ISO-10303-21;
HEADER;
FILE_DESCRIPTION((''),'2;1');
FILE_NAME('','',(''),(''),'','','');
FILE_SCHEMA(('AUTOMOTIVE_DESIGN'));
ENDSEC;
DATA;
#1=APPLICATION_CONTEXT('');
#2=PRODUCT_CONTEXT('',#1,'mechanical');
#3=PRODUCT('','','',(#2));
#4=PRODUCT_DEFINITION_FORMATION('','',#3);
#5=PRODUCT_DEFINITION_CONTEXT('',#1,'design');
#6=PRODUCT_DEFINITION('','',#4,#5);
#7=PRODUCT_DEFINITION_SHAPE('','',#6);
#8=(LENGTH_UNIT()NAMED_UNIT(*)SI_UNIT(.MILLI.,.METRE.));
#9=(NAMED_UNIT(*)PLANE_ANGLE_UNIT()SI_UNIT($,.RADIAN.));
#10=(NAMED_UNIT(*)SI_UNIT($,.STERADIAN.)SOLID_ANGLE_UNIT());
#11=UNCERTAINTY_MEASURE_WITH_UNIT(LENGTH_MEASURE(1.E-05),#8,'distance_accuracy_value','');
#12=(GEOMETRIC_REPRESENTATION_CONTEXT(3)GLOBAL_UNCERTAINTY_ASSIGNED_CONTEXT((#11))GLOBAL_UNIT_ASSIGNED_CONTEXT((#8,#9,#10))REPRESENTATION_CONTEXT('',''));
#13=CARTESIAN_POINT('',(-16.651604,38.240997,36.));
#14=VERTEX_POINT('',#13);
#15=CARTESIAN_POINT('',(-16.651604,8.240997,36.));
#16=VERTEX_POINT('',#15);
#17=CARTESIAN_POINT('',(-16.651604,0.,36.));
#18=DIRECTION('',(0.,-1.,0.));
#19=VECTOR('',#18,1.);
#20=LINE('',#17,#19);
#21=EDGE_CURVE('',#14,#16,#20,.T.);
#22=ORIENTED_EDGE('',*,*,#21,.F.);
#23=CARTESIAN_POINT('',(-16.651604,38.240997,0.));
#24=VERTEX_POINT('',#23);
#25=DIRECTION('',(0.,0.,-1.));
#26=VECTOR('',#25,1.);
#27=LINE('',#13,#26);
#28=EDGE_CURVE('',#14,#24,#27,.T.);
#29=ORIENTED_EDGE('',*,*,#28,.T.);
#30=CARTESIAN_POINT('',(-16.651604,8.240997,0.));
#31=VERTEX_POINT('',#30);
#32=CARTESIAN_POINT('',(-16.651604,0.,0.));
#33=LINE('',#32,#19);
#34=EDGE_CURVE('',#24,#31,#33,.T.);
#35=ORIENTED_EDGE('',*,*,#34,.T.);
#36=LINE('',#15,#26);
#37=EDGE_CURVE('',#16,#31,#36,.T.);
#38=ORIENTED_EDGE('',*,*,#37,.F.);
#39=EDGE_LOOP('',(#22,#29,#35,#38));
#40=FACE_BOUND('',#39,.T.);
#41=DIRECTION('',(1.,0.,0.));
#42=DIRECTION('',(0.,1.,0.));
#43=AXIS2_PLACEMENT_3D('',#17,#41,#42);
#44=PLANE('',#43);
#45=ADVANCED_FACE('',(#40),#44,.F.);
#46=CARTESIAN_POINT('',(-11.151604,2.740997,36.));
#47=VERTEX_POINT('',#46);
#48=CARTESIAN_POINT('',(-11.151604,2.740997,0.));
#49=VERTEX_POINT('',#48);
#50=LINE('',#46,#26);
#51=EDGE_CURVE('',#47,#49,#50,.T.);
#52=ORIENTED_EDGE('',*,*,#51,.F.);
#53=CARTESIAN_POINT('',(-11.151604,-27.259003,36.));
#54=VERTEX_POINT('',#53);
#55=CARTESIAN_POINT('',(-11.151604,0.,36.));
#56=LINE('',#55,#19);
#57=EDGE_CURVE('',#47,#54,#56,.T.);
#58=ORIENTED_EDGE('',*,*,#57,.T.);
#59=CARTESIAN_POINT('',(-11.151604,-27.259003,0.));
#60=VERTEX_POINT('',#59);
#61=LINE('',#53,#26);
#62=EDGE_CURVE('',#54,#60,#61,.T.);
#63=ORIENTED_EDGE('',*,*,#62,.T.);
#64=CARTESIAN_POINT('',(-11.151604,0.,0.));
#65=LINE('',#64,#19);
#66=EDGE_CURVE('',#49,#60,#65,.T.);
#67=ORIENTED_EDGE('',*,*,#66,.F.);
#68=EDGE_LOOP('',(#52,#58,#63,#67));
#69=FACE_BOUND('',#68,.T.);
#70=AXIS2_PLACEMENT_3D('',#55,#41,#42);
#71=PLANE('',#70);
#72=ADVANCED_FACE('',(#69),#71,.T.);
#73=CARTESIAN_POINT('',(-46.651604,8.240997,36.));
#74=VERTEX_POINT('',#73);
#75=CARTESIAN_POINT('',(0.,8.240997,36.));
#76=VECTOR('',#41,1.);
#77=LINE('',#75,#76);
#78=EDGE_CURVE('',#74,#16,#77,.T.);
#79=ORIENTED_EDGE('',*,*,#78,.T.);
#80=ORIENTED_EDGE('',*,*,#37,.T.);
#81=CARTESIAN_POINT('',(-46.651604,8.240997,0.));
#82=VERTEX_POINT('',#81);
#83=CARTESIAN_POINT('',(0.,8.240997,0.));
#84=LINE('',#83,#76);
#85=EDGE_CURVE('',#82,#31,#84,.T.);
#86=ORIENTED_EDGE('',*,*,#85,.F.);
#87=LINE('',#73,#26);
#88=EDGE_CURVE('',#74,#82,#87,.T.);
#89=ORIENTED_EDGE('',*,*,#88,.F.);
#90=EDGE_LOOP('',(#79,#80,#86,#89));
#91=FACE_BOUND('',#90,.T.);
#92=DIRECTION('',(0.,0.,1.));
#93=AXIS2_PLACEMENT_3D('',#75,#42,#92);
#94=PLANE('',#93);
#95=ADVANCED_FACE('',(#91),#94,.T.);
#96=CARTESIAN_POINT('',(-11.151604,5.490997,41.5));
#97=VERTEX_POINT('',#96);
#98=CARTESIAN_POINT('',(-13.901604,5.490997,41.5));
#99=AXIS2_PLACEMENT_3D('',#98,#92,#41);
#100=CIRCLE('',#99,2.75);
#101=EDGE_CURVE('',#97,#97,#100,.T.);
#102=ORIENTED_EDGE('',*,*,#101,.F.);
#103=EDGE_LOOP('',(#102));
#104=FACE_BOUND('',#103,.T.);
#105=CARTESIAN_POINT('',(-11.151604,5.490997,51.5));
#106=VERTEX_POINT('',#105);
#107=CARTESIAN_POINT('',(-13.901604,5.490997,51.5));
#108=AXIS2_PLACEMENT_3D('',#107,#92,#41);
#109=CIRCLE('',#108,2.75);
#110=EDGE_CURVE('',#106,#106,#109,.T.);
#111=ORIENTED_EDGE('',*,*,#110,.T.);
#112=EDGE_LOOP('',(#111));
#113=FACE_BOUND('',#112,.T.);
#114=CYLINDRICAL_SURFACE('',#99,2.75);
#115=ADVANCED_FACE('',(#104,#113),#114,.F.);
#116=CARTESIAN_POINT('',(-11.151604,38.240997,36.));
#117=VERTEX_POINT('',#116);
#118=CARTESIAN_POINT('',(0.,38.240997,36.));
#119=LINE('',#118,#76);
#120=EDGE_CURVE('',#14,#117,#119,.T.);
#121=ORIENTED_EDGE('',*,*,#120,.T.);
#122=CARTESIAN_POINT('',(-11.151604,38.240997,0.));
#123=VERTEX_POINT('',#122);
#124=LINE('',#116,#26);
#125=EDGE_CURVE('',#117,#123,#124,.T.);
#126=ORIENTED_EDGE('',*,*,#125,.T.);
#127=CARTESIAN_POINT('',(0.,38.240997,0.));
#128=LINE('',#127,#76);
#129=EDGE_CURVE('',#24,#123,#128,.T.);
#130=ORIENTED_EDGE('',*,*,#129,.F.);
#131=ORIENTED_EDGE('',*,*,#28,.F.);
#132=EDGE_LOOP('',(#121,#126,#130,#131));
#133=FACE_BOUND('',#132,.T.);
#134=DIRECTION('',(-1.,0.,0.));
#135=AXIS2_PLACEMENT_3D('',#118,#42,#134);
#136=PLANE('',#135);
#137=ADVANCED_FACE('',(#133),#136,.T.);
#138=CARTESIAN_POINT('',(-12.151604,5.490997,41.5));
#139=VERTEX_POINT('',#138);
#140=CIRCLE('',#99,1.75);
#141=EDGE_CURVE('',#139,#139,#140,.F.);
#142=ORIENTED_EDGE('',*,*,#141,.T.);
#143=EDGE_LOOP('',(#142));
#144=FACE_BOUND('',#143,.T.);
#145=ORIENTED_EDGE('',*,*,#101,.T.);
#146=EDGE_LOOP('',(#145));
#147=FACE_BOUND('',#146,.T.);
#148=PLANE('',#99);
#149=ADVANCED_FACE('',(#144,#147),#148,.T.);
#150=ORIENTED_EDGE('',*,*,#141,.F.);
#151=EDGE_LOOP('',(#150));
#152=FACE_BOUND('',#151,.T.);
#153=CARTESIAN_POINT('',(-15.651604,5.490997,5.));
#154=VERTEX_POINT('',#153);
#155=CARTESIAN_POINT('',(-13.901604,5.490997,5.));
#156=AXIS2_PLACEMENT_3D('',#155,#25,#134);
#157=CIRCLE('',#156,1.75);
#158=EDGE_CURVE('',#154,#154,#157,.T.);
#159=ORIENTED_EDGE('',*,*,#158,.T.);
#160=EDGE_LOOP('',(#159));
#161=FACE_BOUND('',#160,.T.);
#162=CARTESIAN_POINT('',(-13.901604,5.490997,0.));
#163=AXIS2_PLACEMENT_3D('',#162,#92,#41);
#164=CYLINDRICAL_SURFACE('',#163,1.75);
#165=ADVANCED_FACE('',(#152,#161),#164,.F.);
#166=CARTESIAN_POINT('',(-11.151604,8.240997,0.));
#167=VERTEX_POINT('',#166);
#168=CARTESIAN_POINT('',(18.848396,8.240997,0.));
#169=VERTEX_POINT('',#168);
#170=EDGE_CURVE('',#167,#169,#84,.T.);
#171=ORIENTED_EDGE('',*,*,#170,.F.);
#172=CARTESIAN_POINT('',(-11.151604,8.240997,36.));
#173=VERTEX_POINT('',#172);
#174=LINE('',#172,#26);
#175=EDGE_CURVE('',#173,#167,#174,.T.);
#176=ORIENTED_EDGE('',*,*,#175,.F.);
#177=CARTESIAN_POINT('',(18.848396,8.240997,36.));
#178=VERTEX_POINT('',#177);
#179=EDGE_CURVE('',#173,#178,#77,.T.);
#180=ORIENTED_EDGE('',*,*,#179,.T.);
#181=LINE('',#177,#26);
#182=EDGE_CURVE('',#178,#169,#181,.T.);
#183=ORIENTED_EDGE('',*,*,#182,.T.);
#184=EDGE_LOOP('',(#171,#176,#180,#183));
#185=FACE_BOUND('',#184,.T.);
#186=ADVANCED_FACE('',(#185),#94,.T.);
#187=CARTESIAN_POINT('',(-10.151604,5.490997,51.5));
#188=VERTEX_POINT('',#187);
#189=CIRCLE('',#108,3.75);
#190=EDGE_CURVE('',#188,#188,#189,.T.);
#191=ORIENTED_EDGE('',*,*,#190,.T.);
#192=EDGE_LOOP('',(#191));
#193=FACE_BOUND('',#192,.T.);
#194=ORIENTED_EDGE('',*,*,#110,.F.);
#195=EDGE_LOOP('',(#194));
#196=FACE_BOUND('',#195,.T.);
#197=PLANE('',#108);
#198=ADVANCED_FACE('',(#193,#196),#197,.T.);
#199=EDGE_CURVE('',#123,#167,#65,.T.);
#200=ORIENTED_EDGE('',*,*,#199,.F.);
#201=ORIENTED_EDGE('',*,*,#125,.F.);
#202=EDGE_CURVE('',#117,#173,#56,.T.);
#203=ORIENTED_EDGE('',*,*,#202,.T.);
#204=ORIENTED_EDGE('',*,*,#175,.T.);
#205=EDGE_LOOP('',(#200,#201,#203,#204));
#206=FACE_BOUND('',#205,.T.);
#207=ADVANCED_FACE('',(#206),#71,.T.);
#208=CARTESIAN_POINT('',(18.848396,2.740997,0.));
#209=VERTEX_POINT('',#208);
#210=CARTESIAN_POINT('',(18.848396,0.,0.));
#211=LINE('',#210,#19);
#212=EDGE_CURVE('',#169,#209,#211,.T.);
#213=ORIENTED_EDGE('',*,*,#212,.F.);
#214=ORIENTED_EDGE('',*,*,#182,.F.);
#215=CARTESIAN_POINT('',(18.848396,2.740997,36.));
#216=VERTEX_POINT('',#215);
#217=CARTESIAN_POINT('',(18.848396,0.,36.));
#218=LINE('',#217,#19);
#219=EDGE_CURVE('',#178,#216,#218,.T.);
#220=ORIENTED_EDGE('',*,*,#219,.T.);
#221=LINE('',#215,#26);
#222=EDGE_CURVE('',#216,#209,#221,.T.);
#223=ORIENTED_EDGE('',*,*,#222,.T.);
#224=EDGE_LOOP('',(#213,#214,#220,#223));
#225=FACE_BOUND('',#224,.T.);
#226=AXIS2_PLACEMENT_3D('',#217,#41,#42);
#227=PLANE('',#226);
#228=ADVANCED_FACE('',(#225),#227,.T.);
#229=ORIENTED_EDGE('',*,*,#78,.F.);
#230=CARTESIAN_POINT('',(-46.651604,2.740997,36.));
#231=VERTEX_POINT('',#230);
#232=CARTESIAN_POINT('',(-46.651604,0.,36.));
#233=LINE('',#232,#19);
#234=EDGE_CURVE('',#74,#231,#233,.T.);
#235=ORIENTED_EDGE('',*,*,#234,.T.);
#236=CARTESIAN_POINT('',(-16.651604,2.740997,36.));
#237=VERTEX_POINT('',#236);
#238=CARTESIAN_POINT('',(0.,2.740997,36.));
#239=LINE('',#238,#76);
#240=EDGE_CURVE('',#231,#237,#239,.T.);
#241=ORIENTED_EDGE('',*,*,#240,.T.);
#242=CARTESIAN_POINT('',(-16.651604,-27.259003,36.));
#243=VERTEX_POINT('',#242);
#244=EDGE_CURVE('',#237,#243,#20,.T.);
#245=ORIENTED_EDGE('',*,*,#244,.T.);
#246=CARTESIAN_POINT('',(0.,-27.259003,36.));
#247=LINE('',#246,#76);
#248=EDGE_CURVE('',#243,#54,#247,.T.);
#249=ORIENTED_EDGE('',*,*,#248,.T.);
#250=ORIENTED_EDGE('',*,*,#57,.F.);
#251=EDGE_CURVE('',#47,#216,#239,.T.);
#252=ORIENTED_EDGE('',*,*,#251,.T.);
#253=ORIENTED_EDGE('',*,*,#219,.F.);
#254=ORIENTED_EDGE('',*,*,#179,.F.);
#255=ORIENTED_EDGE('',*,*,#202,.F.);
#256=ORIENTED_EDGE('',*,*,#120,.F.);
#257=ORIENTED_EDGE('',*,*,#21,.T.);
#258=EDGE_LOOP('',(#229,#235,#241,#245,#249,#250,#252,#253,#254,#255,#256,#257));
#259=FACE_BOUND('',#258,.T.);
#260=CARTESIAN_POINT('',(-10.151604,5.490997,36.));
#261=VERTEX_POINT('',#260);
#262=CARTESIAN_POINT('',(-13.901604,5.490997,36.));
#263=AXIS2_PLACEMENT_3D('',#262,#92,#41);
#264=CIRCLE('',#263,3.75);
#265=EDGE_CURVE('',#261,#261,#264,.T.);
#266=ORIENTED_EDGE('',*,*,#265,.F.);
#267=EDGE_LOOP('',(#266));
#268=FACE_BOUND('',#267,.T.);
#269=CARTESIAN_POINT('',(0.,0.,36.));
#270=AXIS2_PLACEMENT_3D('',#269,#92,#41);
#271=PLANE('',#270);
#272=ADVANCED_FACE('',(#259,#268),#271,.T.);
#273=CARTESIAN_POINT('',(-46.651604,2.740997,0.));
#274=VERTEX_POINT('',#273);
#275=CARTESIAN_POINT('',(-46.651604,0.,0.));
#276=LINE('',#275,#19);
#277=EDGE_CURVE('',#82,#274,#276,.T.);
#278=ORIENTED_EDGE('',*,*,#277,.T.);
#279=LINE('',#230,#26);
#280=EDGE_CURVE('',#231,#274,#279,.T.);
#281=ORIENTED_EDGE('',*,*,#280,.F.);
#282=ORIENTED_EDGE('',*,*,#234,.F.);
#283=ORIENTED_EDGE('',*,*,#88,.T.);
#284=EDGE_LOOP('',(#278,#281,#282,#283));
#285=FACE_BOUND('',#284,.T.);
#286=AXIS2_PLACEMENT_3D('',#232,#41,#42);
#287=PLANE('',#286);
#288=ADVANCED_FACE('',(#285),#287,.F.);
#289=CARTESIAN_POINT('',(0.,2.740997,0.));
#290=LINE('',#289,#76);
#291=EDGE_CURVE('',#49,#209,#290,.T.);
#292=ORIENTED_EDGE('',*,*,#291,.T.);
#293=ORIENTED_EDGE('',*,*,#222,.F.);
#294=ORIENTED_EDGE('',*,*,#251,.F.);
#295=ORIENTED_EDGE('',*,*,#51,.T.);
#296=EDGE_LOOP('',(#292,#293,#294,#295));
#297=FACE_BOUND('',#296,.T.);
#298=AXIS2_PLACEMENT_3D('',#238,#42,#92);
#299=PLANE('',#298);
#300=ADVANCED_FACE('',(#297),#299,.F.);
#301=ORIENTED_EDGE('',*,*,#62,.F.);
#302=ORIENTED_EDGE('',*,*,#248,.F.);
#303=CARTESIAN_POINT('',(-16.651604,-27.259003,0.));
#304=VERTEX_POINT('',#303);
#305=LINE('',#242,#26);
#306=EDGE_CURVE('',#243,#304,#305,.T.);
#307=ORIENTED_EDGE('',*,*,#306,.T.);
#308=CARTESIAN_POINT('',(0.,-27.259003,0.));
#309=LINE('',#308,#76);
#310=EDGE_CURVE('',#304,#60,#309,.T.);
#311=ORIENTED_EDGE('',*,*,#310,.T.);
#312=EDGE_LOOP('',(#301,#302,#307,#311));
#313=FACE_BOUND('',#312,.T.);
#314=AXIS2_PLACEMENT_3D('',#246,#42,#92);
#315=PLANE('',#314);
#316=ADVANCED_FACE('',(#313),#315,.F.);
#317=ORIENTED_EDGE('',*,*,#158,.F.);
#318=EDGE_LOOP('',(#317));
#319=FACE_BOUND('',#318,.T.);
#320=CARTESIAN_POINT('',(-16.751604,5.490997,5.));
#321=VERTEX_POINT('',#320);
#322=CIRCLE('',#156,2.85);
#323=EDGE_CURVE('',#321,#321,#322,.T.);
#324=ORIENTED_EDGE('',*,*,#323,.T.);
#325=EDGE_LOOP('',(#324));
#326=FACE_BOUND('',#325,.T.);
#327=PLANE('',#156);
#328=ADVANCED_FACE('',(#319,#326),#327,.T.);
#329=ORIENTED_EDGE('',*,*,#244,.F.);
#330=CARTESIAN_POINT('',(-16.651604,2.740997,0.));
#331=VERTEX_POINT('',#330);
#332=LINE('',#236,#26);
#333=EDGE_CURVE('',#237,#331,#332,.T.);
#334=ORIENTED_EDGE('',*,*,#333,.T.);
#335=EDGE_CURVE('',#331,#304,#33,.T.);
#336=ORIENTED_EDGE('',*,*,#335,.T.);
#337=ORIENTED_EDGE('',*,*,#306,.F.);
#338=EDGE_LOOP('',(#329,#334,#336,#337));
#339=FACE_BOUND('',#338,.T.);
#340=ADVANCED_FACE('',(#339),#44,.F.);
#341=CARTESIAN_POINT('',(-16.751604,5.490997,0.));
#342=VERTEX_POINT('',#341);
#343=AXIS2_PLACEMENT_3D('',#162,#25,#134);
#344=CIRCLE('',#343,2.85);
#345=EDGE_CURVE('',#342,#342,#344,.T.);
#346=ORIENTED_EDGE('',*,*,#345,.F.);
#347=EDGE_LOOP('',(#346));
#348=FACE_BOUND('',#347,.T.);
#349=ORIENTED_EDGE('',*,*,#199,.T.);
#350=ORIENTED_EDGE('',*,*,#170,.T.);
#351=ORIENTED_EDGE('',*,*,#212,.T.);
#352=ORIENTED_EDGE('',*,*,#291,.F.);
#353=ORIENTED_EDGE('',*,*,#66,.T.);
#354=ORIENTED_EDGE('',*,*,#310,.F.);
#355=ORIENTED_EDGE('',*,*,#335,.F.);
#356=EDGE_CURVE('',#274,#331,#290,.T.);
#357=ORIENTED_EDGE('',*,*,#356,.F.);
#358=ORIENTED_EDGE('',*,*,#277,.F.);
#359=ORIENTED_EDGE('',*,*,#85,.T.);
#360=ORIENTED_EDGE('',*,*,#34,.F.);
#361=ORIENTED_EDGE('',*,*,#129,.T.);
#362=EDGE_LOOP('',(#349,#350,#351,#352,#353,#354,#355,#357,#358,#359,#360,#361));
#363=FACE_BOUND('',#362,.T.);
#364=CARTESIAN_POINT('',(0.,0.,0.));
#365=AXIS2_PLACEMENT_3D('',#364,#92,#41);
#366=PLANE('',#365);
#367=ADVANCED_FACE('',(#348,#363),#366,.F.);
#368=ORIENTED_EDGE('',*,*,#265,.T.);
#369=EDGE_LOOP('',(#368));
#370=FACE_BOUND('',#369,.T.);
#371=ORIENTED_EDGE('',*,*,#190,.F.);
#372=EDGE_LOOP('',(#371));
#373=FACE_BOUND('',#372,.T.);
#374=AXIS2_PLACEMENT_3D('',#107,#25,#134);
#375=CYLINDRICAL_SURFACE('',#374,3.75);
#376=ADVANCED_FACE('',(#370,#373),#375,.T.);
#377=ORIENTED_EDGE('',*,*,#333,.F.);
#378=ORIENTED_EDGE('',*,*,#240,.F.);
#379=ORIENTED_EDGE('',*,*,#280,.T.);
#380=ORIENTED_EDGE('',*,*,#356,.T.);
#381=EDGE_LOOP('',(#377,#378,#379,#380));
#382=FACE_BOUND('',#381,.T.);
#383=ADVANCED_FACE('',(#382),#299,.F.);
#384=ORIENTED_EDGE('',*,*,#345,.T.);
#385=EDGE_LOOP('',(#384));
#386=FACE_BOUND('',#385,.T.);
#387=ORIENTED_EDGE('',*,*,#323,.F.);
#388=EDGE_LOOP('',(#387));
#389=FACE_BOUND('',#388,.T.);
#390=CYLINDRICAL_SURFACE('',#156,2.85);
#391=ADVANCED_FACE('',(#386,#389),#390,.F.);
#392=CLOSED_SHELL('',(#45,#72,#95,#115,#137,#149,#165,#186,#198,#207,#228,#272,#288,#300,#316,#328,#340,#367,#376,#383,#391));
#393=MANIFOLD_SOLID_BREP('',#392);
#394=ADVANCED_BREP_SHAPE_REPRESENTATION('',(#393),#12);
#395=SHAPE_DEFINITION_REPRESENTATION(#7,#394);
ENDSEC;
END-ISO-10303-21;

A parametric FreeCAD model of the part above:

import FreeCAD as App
import Part
import Sketcher

V = App.Vector
Q = App.Units.Quantity


def add_polygon(sketch, points):
    """Adds a closed chain of lines whose ends are joined by coincident constraints."""
    first, n = sketch.GeometryCount, len(points)
    for a, b in zip(points, points[1:] + points[:1]):
        sketch.addGeometry(Part.LineSegment(App.Vector(*a, 0), App.Vector(*b, 0)), False)
    for i in range(n):
        sketch.addConstraint(Sketcher.Constraint("Coincident", first + i, 2, first + (i + 1) % n, 1))

doc = App.newDocument("Part")
params = doc.addObject("Spreadsheet::Sheet", "Params")
for row, (alias, value) in enumerate([
    ("sketch1_width", "30 mm"),
    ("sketch1_width2", "5.5 mm"),
    ("pad1_length", "36 mm"),
    ("sketch2_diameter", "7.5 mm"),
    ("pad2_length", "15.5 mm"),
    ("sketch3_diameter", "5.7 mm"),
    ("pocket1_length", "5 mm"),
    ("sketch4_diameter", "3.5 mm"),
    ("sketch5_diameter", "5.5 mm"),
    ("pocket3_length", "10 mm"),
], start=1):
    params.set(f"A{row}", alias)
    params.set(f"B{row}", "=" + value)
    params.setAlias(f"B{row}", alias)

body = doc.addObject("PartDesign::Body", "Body")

# Sketch on XY plane
sketch1 = doc.addObject("Sketcher::SketchObject", "Sketch")
body.addObject(sketch1)
sketch1.AttachmentSupport = (doc.XY_Plane, [""])
sketch1.MapMode = "FlatFace"
add_polygon(sketch1, [(-17, 38), (-17, 8), (-47, 8), (-47, 3), (-17, 3), (-17, -27), (-11, -27), (-11, 3), (19, 3), (19, 8), (-11, 8), (-11, 38)])  # lines 0-11
sketch1.addConstraint(Sketcher.Constraint("Vertical", 0))
sketch1.addConstraint(Sketcher.Constraint("Horizontal", 1))
sketch1.addConstraint(Sketcher.Constraint("Vertical", 2))
sketch1.addConstraint(Sketcher.Constraint("Horizontal", 3))
sketch1.addConstraint(Sketcher.Constraint("Vertical", 4))
sketch1.addConstraint(Sketcher.Constraint("Horizontal", 5))
sketch1.addConstraint(Sketcher.Constraint("Vertical", 6))
sketch1.addConstraint(Sketcher.Constraint("Horizontal", 7))
sketch1.addConstraint(Sketcher.Constraint("Vertical", 8))
sketch1.addConstraint(Sketcher.Constraint("Horizontal", 9))
sketch1.addConstraint(Sketcher.Constraint("Vertical", 10))
sketch1.addConstraint(Sketcher.Constraint("Horizontal", 11))
sketch1.addConstraint(Sketcher.Constraint("Horizontal", 3, 2, 6, 2))
sketch1.addConstraint(Sketcher.Constraint("Horizontal", 1, 2, 8, 2))
sketch1.addConstraint(Sketcher.Constraint("Vertical", 0, 2, 3, 2))
sketch1.addConstraint(Sketcher.Constraint("Vertical", 6, 2, 9, 2))
sketch1.addConstraint(Sketcher.Constraint("Equal", 3, 7))
sketch1.addConstraint(Sketcher.Constraint("Equal", 9, 0))
sketch1.addConstraint(Sketcher.Constraint("Equal", 11, 2))
sketch1.addConstraint(Sketcher.Constraint("Equal", 0, 4))
sketch1.addConstraint(Sketcher.Constraint("DistanceX", 1, 2, 1, 1, Q("30 mm")))
sketch1.addConstraint(Sketcher.Constraint("DistanceX", 5, 1, 5, 2, Q("5.5 mm")))
sketch1.addConstraint(Sketcher.Constraint("DistanceX", 0, 2, -1, 1, Q("16.651604 mm")))
sketch1.addConstraint(Sketcher.Constraint("DistanceY", -1, 1, 0, 2, Q("8.240997 mm")))
sketch1.setExpression("Constraints[32]", "Params.sketch1_width")
sketch1.setExpression("Constraints[33]", "Params.sketch1_width2")
pad1 = doc.addObject("PartDesign::Pad", "Pad")
body.addObject(pad1)
pad1.Profile = sketch1
pad1.setExpression("Length", "Params.pad1_length")

# Sketch on XY plane
sketch2 = doc.addObject("Sketcher::SketchObject", "Sketch001")
body.addObject(sketch2)
sketch2.AttachmentSupport = (doc.XY_Plane, [""])
sketch2.MapMode = "FlatFace"
sketch2.AttachmentOffset = App.Placement(V(0, 0, 36), App.Rotation())
sketch2.addGeometry(Part.Circle(V(-13.9, 5.5, 0), V(0, 0, 1), 3.8), False)
sketch2.addConstraint(Sketcher.Constraint("Diameter", 0, Q("7.5 mm")))
sketch2.addConstraint(Sketcher.Constraint("DistanceX", 0, 3, -1, 1, Q("13.901604 mm")))
sketch2.addConstraint(Sketcher.Constraint("DistanceY", -1, 1, 0, 3, Q("5.490997 mm")))
sketch2.setExpression("Constraints[0]", "Params.sketch2_diameter")
pad2 = doc.addObject("PartDesign::Pad", "Pad001")
body.addObject(pad2)
pad2.Profile = sketch2
pad2.setExpression("Length", "Params.pad2_length")

# Sketch on XY plane
sketch3 = doc.addObject("Sketcher::SketchObject", "Sketch002")
body.addObject(sketch3)
sketch3.AttachmentSupport = (doc.XY_Plane, [""])
sketch3.MapMode = "FlatFace"
sketch3.addGeometry(Part.Circle(V(-13.9, 5.5, 0), V(0, 0, 1), 2.9), False)
sketch3.addConstraint(Sketcher.Constraint("Diameter", 0, Q("5.7 mm")))
sketch3.addConstraint(Sketcher.Constraint("DistanceX", 0, 3, -1, 1, Q("13.901604 mm")))
sketch3.addConstraint(Sketcher.Constraint("DistanceY", -1, 1, 0, 3, Q("5.490997 mm")))
sketch3.setExpression("Constraints[0]", "Params.sketch3_diameter")
pocket1 = doc.addObject("PartDesign::Pocket", "Pocket")
body.addObject(pocket1)
pocket1.Profile = sketch3
pocket1.setExpression("Length", "Params.pocket1_length")
pocket1.Reversed = True

# Sketch on XY plane
sketch4 = doc.addObject("Sketcher::SketchObject", "Sketch003")
body.addObject(sketch4)
sketch4.AttachmentSupport = (doc.XY_Plane, [""])
sketch4.MapMode = "FlatFace"
sketch4.AttachmentOffset = App.Placement(V(0, 0, 51.5), App.Rotation())
sketch4.addGeometry(Part.Circle(V(-13.9, 5.5, 0), V(0, 0, 1), 1.8), False)
sketch4.addConstraint(Sketcher.Constraint("Diameter", 0, Q("3.5 mm")))
sketch4.addConstraint(Sketcher.Constraint("DistanceX", 0, 3, -1, 1, Q("13.901604 mm")))
sketch4.addConstraint(Sketcher.Constraint("DistanceY", -1, 1, 0, 3, Q("5.490997 mm")))
sketch4.setExpression("Constraints[0]", "Params.sketch4_diameter")
pocket2 = doc.addObject("PartDesign::Pocket", "Pocket001")
body.addObject(pocket2)
pocket2.Profile = sketch4
pocket2.Type = "ThroughAll"

# Sketch on XY plane
sketch5 = doc.addObject("Sketcher::SketchObject", "Sketch004")
body.addObject(sketch5)
sketch5.AttachmentSupport = (doc.XY_Plane, [""])
sketch5.MapMode = "FlatFace"
sketch5.AttachmentOffset = App.Placement(V(0, 0, 51.5), App.Rotation())
sketch5.addGeometry(Part.Circle(V(-13.9, 5.5, 0), V(0, 0, 1), 2.8), False)
sketch5.addConstraint(Sketcher.Constraint("Diameter", 0, Q("5.5 mm")))
sketch5.addConstraint(Sketcher.Constraint("DistanceX", 0, 3, -1, 1, Q("13.901604 mm")))
sketch5.addConstraint(Sketcher.Constraint("DistanceY", -1, 1, 0, 3, Q("5.490997 mm")))
sketch5.setExpression("Constraints[0]", "Params.sketch5_diameter")
pocket3 = doc.addObject("PartDesign::Pocket", "Pocket002")
body.addObject(pocket3)
pocket3.Profile = sketch5
pocket3.setExpression("Length", "Params.pocket3_length")

doc.recompute()
